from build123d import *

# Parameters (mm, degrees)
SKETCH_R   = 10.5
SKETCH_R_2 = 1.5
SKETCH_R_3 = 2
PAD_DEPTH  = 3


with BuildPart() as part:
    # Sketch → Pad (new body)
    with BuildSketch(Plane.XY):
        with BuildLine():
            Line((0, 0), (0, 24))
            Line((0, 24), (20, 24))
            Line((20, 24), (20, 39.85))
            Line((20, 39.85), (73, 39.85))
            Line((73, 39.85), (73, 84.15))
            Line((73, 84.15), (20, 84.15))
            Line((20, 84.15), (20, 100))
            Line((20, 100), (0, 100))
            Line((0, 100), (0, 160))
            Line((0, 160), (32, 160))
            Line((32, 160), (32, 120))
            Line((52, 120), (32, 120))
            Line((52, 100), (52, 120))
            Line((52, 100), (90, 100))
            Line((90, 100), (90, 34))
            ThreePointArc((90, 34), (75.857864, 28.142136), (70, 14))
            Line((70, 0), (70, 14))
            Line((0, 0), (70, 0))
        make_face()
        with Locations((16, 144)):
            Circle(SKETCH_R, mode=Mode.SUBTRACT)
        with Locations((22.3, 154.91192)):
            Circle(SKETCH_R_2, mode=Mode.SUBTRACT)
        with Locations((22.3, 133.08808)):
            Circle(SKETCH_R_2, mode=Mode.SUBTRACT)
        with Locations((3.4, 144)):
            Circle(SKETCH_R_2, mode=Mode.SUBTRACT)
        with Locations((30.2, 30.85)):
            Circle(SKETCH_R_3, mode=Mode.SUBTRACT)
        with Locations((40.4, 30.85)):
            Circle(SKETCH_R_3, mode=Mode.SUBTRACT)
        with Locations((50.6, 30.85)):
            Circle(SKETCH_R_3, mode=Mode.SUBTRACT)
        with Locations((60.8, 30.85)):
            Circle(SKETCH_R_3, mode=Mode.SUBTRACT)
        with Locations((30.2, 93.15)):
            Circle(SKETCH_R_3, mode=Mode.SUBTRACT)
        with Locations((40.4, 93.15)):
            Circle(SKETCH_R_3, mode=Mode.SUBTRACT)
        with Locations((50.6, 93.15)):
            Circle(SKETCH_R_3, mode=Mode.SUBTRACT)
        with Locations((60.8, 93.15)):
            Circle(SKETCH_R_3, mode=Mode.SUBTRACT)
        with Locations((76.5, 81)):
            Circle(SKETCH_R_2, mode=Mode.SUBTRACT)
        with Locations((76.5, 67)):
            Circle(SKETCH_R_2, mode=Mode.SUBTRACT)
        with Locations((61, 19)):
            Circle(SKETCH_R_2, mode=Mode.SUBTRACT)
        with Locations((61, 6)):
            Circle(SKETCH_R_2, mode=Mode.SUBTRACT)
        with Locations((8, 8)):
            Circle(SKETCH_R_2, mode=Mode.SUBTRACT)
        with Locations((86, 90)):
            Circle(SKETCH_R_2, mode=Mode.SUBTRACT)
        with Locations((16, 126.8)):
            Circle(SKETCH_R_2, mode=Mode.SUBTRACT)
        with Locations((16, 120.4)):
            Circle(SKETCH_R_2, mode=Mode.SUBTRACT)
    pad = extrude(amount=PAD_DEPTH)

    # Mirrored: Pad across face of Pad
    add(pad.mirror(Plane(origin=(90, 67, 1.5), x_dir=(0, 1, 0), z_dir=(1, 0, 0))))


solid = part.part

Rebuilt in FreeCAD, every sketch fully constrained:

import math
import FreeCAD as App
import Part
import Sketcher
from FreeCAD import Vector

doc = App.newDocument("Part")
params = doc.addObject("Spreadsheet::Sheet", "Params")
for row, (alias, value) in enumerate([
    ("sketch1_diameter", "3 mm"),
    ("sketch1_diameter2", "4 mm"),
    ("sketch1_diameter3", "21 mm"),
    ("sketch1_radius", "19.999999 mm"),
    ("sketch1_width", "70 mm"),
    ("pad1_length", "3 mm"),
], start=1):
    params.set(f"A{row}", alias)
    params.set(f"B{row}", "=" + value)
    params.setAlias(f"B{row}", alias)

body = doc.addObject("PartDesign::Body", "Body")

# Sketch on XY plane
sketch1 = body.newObject("Sketcher::SketchObject", "Sketch")
sketch1.AttachmentSupport = (doc.getObject("XY_Plane"), [""])
sketch1.MapMode = "FlatFace"
sketch1.addGeometry(Part.LineSegment(Vector(0, 24, 0), Vector(0, 0, 0)), False)
sketch1.addGeometry(Part.LineSegment(Vector(0, 0, 0), Vector(70, 0, 0)), False)
sketch1.addGeometry(Part.LineSegment(Vector(70, 0, 0), Vector(70, 14, 0)), False)
sketch1.addGeometry(Part.ArcOfCircle(Part.Circle(Vector(90, 14, 0), Vector(0, 0, 1), 20), math.radians(90), math.radians(180)), False)
sketch1.addGeometry(Part.LineSegment(Vector(90, 34, 0), Vector(90, 100, 0)), False)
sketch1.addGeometry(Part.LineSegment(Vector(90, 100, 0), Vector(52, 100, 0)), False)
sketch1.addGeometry(Part.LineSegment(Vector(52, 100, 0), Vector(52, 120, 0)), False)
sketch1.addGeometry(Part.LineSegment(Vector(52, 120, 0), Vector(32, 120, 0)), False)
sketch1.addGeometry(Part.LineSegment(Vector(32, 120, 0), Vector(32, 160, 0)), False)
sketch1.addGeometry(Part.LineSegment(Vector(32, 160, 0), Vector(0, 160, 0)), False)
sketch1.addGeometry(Part.LineSegment(Vector(0, 160, 0), Vector(0, 100, 0)), False)
sketch1.addGeometry(Part.LineSegment(Vector(0, 100, 0), Vector(20, 100, 0)), False)
sketch1.addGeometry(Part.LineSegment(Vector(20, 100, 0), Vector(20, 84.2, 0)), False)
sketch1.addGeometry(Part.LineSegment(Vector(20, 84.2, 0), Vector(73, 84.2, 0)), False)
sketch1.addGeometry(Part.LineSegment(Vector(73, 84.2, 0), Vector(73, 39.9, 0)), False)
sketch1.addGeometry(Part.LineSegment(Vector(73, 39.9, 0), Vector(20, 39.9, 0)), False)
sketch1.addGeometry(Part.LineSegment(Vector(20, 39.9, 0), Vector(20, 24, 0)), False)
sketch1.addGeometry(Part.LineSegment(Vector(20, 24, 0), Vector(0, 24, 0)), False)
sketch1.addGeometry(Part.Circle(Vector(61, 6, 0), Vector(0, 0, 1), 1.5), False)
sketch1.addGeometry(Part.Circle(Vector(61, 19, 0), Vector(0, 0, 1), 1.5), False)
sketch1.addGeometry(Part.Circle(Vector(60.8, 30.9, 0), Vector(0, 0, 1), 2), False)
sketch1.addGeometry(Part.Circle(Vector(50.6, 30.9, 0), Vector(0, 0, 1), 2), False)
sketch1.addGeometry(Part.Circle(Vector(76.5, 67, 0), Vector(0, 0, 1), 1.5), False)
sketch1.addGeometry(Part.Circle(Vector(40.4, 30.9, 0), Vector(0, 0, 1), 2), False)
sketch1.addGeometry(Part.Circle(Vector(30.2, 30.9, 0), Vector(0, 0, 1), 2), False)
sketch1.addGeometry(Part.Circle(Vector(8, 8, 0), Vector(0, 0, 1), 1.5), False)
sketch1.addGeometry(Part.Circle(Vector(86, 90, 0), Vector(0, 0, 1), 1.5), False)
sketch1.addGeometry(Part.Circle(Vector(76.5, 81, 0), Vector(0, 0, 1), 1.5), False)
sketch1.addGeometry(Part.Circle(Vector(60.8, 93.2, 0), Vector(0, 0, 1), 2), False)
sketch1.addGeometry(Part.Circle(Vector(50.6, 93.2, 0), Vector(0, 0, 1), 2), False)
sketch1.addGeometry(Part.Circle(Vector(40.4, 93.2, 0), Vector(0, 0, 1), 2), False)
sketch1.addGeometry(Part.Circle(Vector(30.2, 93.2, 0), Vector(0, 0, 1), 2), False)
sketch1.addGeometry(Part.Circle(Vector(16, 120.4, 0), Vector(0, 0, 1), 1.5), False)
sketch1.addGeometry(Part.Circle(Vector(16, 126.8, 0), Vector(0, 0, 1), 1.5), False)
sketch1.addGeometry(Part.Circle(Vector(22.3, 133.1, 0), Vector(0, 0, 1), 1.5), False)
sketch1.addGeometry(Part.Circle(Vector(16, 144, 0), Vector(0, 0, 1), 10.5), False)
sketch1.addGeometry(Part.Circle(Vector(22.3, 154.9, 0), Vector(0, 0, 1), 1.5), False)
sketch1.addGeometry(Part.Circle(Vector(3.4, 144, 0), Vector(0, 0, 1), 1.5), False)
sketch1.addConstraint(Sketcher.Constraint("Coincident", 0, 2, 1, 1))
sketch1.addConstraint(Sketcher.Constraint("Coincident", 1, 2, 2, 1))
sketch1.addConstraint(Sketcher.Constraint("Tangent", 2, 2, 3, 2))
sketch1.addConstraint(Sketcher.Constraint("Coincident", 3, 1, 4, 1))
sketch1.addConstraint(Sketcher.Constraint("Coincident", 4, 2, 5, 1))
sketch1.addConstraint(Sketcher.Constraint("Coincident", 5, 2, 6, 1))
sketch1.addConstraint(Sketcher.Constraint("Coincident", 6, 2, 7, 1))
sketch1.addConstraint(Sketcher.Constraint("Coincident", 7, 2, 8, 1))
sketch1.addConstraint(Sketcher.Constraint("Coincident", 8, 2, 9, 1))
sketch1.addConstraint(Sketcher.Constraint("Coincident", 9, 2, 10, 1))
sketch1.addConstraint(Sketcher.Constraint("Coincident", 10, 2, 11, 1))
sketch1.addConstraint(Sketcher.Constraint("Coincident", 11, 2, 12, 1))
sketch1.addConstraint(Sketcher.Constraint("Coincident", 12, 2, 13, 1))
sketch1.addConstraint(Sketcher.Constraint("Coincident", 13, 2, 14, 1))
sketch1.addConstraint(Sketcher.Constraint("Coincident", 14, 2, 15, 1))
sketch1.addConstraint(Sketcher.Constraint("Coincident", 15, 2, 16, 1))
sketch1.addConstraint(Sketcher.Constraint("Coincident", 16, 2, 17, 1))
sketch1.addConstraint(Sketcher.Constraint("Coincident", 17, 2, 0, 1))
sketch1.addConstraint(Sketcher.Constraint("Vertical", 0))
sketch1.addConstraint(Sketcher.Constraint("Horizontal", 1))
sketch1.addConstraint(Sketcher.Constraint("Vertical", 2))
sketch1.addConstraint(Sketcher.Constraint("Vertical", 4))
sketch1.addConstraint(Sketcher.Constraint("Horizontal", 5))
sketch1.addConstraint(Sketcher.Constraint("Vertical", 6))
sketch1.addConstraint(Sketcher.Constraint("Horizontal", 7))
sketch1.addConstraint(Sketcher.Constraint("Vertical", 8))
sketch1.addConstraint(Sketcher.Constraint("Horizontal", 9))
sketch1.addConstraint(Sketcher.Constraint("Vertical", 10))
sketch1.addConstraint(Sketcher.Constraint("Horizontal", 11))
sketch1.addConstraint(Sketcher.Constraint("Vertical", 12))
sketch1.addConstraint(Sketcher.Constraint("Horizontal", 13))
sketch1.addConstraint(Sketcher.Constraint("Vertical", 14))
sketch1.addConstraint(Sketcher.Constraint("Horizontal", 15))
sketch1.addConstraint(Sketcher.Constraint("Vertical", 16))
sketch1.addConstraint(Sketcher.Constraint("Horizontal", 17))
sketch1.addConstraint(Sketcher.Constraint("Coincident", 0, 2, -1, 1))
sketch1.addConstraint(Sketcher.Constraint("Equal", 18, 19))
sketch1.addConstraint(Sketcher.Constraint("Equal", 20, 21))
sketch1.addConstraint(Sketcher.Constraint("Equal", 19, 22))
sketch1.addConstraint(Sketcher.Constraint("Equal", 21, 23))
sketch1.addConstraint(Sketcher.Constraint("Equal", 23, 24))
sketch1.addConstraint(Sketcher.Constraint("Equal", 22, 25))
sketch1.addConstraint(Sketcher.Constraint("Equal", 25, 26))
sketch1.addConstraint(Sketcher.Constraint("Equal", 26, 27))
sketch1.addConstraint(Sketcher.Constraint("Equal", 24, 28))
sketch1.addConstraint(Sketcher.Constraint("Equal", 28, 29))
sketch1.addConstraint(Sketcher.Constraint("Equal", 29, 30))
sketch1.addConstraint(Sketcher.Constraint("Equal", 30, 31))
sketch1.addConstraint(Sketcher.Constraint("Equal", 27, 32))
sketch1.addConstraint(Sketcher.Constraint("Equal", 32, 33))
sketch1.addConstraint(Sketcher.Constraint("Equal", 33, 34))
sketch1.addConstraint(Sketcher.Constraint("Equal", 34, 36))
sketch1.addConstraint(Sketcher.Constraint("Equal", 36, 37))
sketch1.addConstraint(Sketcher.Constraint("PointOnObject", 9, 2, -2))
sketch1.addConstraint(Sketcher.Constraint("Horizontal", 20, 3, 21, 3))
sketch1.addConstraint(Sketcher.Constraint("Horizontal", 21, 3, 23, 3))
sketch1.addConstraint(Sketcher.Constraint("Horizontal", 23, 3, 24, 3))
sketch1.addConstraint(Sketcher.Constraint("Horizontal", 28, 3, 29, 3))
sketch1.addConstraint(Sketcher.Constraint("Horizontal", 29, 3, 30, 3))
sketch1.addConstraint(Sketcher.Constraint("Horizontal", 30, 3, 31, 3))
sketch1.addConstraint(Sketcher.Constraint("Horizontal", 35, 3, 37, 3))
sketch1.addConstraint(Sketcher.Constraint("Horizontal", 5, 2, 10, 2))
sketch1.addConstraint(Sketcher.Constraint("Vertical", 18, 3, 19, 3))
sketch1.addConstraint(Sketcher.Constraint("Vertical", 22, 3, 27, 3))
sketch1.addConstraint(Sketcher.Constraint("Vertical", 20, 3, 28, 3))
sketch1.addConstraint(Sketcher.Constraint("Vertical", 21, 3, 29, 3))
sketch1.addConstraint(Sketcher.Constraint("Vertical", 23, 3, 30, 3))
sketch1.addConstraint(Sketcher.Constraint("Vertical", 24, 3, 31, 3))
sketch1.addConstraint(Sketcher.Constraint("Vertical", 32, 3, 33, 3))
sketch1.addConstraint(Sketcher.Constraint("Vertical", 33, 3, 35, 3))
sketch1.addConstraint(Sketcher.Constraint("Vertical", 34, 3, 36, 3))
sketch1.addConstraint(Sketcher.Constraint("Vertical", 12, 2, 15, 2))
sketch1.addConstraint(Sketcher.Constraint("Equal", 7, 11))
sketch1.addConstraint(Sketcher.Constraint("Equal", 17, 6))
sketch1.addConstraint(Sketcher.Constraint("Equal", 12, 16))
sketch1.addConstraint(Sketcher.Constraint("Diameter", 18, 3.0))
sketch1.addConstraint(Sketcher.Constraint("Diameter", 20, 4.0))
sketch1.addConstraint(Sketcher.Constraint("Diameter", 35, 21.0))
sketch1.addConstraint(Sketcher.Constraint("Radius", 3, 19.999999))
sketch1.addConstraint(Sketcher.Constraint("DistanceX", 1, 1, 1, 2, 70.0))
sketch1.addConstraint(Sketcher.Constraint("DistanceX", 5, 2, 5, 1, 38.0))
sketch1.addConstraint(Sketcher.Constraint("DistanceX", 7, 2, 7, 1, 20.0))
sketch1.addConstraint(Sketcher.Constraint("DistanceX", 9, 2, 9, 1, 32.0))
sketch1.addConstraint(Sketcher.Constraint("DistanceX", 13, 1, 13, 2, 53.0))
sketch1.addConstraint(Sketcher.Constraint("DistanceY", 0, 2, 0, 1, 24.0))
sketch1.addConstraint(Sketcher.Constraint("DistanceY", 2, 1, 2, 2, 14.0))
sketch1.addConstraint(Sketcher.Constraint("DistanceY", 4, 1, 4, 2, 66.0))
sketch1.addConstraint(Sketcher.Constraint("DistanceY", 8, 1, 8, 2, 40.0))
sketch1.addConstraint(Sketcher.Constraint("DistanceY", 14, 2, 14, 1, 44.3))
sketch1.addConstraint(Sketcher.Constraint("DistanceX", -1, 1, 18, 3, 61.0))
sketch1.addConstraint(Sketcher.Constraint("DistanceY", -1, 1, 18, 3, 6.0))
sketch1.addConstraint(Sketcher.Constraint("DistanceY", -1, 1, 19, 3, 19.0))
sketch1.addConstraint(Sketcher.Constraint("DistanceY", -1, 1, 22, 3, 67.0))
sketch1.addConstraint(Sketcher.Constraint("DistanceX", -1, 1, 25, 3, 8.0))
sketch1.addConstraint(Sketcher.Constraint("DistanceY", -1, 1, 25, 3, 8.0))
sketch1.addConstraint(Sketcher.Constraint("DistanceX", -1, 1, 26, 3, 86.0))
sketch1.addConstraint(Sketcher.Constraint("DistanceY", -1, 1, 26, 3, 90.0))
sketch1.addConstraint(Sketcher.Constraint("DistanceY", -1, 1, 27, 3, 81.0))
sketch1.addConstraint(Sketcher.Constraint("DistanceX", -1, 1, 32, 3, 16.0))
sketch1.addConstraint(Sketcher.Constraint("DistanceY", -1, 1, 35, 3, 144.0))
sketch1.addConstraint(Sketcher.Constraint("DistanceY", 12, 2, 31, 3, 9.0))
sketch1.addConstraint(Sketcher.Constraint("DistanceY", 20, 3, 14, 2, 9.0))
sketch1.addConstraint(Sketcher.Constraint("DistanceX", -1, 1, 20, 3, 60.8))
sketch1.addConstraint(Sketcher.Constraint("DistanceX", -1, 1, 21, 3, 50.6))
sketch1.addConstraint(Sketcher.Constraint("DistanceX", -1, 1, 22, 3, 76.5))
sketch1.addConstraint(Sketcher.Constraint("DistanceX", -1, 1, 23, 3, 40.4))
sketch1.addConstraint(Sketcher.Constraint("DistanceX", -1, 1, 24, 3, 30.2))
sketch1.addConstraint(Sketcher.Constraint("DistanceY", -1, 1, 32, 3, 120.4))
sketch1.addConstraint(Sketcher.Constraint("DistanceY", -1, 1, 33, 3, 126.8))
sketch1.addConstraint(Sketcher.Constraint("DistanceX", -1, 1, 34, 3, 22.3))
sketch1.addConstraint(Sketcher.Constraint("DistanceX", -1, 1, 37, 3, 3.4))
sketch1.addConstraint(Sketcher.Constraint("DistanceY", -1, 1, 34, 3, 133.08808))
sketch1.addConstraint(Sketcher.Constraint("DistanceY", -1, 1, 36, 3, 154.91192))
sketch1.setExpression("Constraints[75]", "Params.sketch1_diameter")
sketch1.setExpression("Constraints[76]", "Params.sketch1_diameter2")
sketch1.setExpression("Constraints[77]", "Params.sketch1_diameter3")
sketch1.setExpression("Constraints[78]", "Params.sketch1_radius")
sketch1.setExpression("Constraints[79]", "Params.sketch1_width")
pad1 = body.newObject("PartDesign::Pad", "Pad")
pad1.Profile = sketch1
pad1.setExpression("Length", "Params.pad1_length")
doc.recompute()

datumplane = body.newObject("PartDesign::Plane", "DatumPlane")
datumplane.AttachmentSupport = (doc.getObject("YZ_Plane"), [""])
datumplane.MapMode = "FlatFace"
datumplane.AttachmentOffset = App.Placement(Vector(0, 0, 90), App.Rotation())
mirrored = body.newObject("PartDesign::Mirrored", "Mirrored")
mirrored.Originals = [pad1]
mirrored.MirrorPlane = (datumplane, [""])
body.Tip = mirrored

doc.recompute()
